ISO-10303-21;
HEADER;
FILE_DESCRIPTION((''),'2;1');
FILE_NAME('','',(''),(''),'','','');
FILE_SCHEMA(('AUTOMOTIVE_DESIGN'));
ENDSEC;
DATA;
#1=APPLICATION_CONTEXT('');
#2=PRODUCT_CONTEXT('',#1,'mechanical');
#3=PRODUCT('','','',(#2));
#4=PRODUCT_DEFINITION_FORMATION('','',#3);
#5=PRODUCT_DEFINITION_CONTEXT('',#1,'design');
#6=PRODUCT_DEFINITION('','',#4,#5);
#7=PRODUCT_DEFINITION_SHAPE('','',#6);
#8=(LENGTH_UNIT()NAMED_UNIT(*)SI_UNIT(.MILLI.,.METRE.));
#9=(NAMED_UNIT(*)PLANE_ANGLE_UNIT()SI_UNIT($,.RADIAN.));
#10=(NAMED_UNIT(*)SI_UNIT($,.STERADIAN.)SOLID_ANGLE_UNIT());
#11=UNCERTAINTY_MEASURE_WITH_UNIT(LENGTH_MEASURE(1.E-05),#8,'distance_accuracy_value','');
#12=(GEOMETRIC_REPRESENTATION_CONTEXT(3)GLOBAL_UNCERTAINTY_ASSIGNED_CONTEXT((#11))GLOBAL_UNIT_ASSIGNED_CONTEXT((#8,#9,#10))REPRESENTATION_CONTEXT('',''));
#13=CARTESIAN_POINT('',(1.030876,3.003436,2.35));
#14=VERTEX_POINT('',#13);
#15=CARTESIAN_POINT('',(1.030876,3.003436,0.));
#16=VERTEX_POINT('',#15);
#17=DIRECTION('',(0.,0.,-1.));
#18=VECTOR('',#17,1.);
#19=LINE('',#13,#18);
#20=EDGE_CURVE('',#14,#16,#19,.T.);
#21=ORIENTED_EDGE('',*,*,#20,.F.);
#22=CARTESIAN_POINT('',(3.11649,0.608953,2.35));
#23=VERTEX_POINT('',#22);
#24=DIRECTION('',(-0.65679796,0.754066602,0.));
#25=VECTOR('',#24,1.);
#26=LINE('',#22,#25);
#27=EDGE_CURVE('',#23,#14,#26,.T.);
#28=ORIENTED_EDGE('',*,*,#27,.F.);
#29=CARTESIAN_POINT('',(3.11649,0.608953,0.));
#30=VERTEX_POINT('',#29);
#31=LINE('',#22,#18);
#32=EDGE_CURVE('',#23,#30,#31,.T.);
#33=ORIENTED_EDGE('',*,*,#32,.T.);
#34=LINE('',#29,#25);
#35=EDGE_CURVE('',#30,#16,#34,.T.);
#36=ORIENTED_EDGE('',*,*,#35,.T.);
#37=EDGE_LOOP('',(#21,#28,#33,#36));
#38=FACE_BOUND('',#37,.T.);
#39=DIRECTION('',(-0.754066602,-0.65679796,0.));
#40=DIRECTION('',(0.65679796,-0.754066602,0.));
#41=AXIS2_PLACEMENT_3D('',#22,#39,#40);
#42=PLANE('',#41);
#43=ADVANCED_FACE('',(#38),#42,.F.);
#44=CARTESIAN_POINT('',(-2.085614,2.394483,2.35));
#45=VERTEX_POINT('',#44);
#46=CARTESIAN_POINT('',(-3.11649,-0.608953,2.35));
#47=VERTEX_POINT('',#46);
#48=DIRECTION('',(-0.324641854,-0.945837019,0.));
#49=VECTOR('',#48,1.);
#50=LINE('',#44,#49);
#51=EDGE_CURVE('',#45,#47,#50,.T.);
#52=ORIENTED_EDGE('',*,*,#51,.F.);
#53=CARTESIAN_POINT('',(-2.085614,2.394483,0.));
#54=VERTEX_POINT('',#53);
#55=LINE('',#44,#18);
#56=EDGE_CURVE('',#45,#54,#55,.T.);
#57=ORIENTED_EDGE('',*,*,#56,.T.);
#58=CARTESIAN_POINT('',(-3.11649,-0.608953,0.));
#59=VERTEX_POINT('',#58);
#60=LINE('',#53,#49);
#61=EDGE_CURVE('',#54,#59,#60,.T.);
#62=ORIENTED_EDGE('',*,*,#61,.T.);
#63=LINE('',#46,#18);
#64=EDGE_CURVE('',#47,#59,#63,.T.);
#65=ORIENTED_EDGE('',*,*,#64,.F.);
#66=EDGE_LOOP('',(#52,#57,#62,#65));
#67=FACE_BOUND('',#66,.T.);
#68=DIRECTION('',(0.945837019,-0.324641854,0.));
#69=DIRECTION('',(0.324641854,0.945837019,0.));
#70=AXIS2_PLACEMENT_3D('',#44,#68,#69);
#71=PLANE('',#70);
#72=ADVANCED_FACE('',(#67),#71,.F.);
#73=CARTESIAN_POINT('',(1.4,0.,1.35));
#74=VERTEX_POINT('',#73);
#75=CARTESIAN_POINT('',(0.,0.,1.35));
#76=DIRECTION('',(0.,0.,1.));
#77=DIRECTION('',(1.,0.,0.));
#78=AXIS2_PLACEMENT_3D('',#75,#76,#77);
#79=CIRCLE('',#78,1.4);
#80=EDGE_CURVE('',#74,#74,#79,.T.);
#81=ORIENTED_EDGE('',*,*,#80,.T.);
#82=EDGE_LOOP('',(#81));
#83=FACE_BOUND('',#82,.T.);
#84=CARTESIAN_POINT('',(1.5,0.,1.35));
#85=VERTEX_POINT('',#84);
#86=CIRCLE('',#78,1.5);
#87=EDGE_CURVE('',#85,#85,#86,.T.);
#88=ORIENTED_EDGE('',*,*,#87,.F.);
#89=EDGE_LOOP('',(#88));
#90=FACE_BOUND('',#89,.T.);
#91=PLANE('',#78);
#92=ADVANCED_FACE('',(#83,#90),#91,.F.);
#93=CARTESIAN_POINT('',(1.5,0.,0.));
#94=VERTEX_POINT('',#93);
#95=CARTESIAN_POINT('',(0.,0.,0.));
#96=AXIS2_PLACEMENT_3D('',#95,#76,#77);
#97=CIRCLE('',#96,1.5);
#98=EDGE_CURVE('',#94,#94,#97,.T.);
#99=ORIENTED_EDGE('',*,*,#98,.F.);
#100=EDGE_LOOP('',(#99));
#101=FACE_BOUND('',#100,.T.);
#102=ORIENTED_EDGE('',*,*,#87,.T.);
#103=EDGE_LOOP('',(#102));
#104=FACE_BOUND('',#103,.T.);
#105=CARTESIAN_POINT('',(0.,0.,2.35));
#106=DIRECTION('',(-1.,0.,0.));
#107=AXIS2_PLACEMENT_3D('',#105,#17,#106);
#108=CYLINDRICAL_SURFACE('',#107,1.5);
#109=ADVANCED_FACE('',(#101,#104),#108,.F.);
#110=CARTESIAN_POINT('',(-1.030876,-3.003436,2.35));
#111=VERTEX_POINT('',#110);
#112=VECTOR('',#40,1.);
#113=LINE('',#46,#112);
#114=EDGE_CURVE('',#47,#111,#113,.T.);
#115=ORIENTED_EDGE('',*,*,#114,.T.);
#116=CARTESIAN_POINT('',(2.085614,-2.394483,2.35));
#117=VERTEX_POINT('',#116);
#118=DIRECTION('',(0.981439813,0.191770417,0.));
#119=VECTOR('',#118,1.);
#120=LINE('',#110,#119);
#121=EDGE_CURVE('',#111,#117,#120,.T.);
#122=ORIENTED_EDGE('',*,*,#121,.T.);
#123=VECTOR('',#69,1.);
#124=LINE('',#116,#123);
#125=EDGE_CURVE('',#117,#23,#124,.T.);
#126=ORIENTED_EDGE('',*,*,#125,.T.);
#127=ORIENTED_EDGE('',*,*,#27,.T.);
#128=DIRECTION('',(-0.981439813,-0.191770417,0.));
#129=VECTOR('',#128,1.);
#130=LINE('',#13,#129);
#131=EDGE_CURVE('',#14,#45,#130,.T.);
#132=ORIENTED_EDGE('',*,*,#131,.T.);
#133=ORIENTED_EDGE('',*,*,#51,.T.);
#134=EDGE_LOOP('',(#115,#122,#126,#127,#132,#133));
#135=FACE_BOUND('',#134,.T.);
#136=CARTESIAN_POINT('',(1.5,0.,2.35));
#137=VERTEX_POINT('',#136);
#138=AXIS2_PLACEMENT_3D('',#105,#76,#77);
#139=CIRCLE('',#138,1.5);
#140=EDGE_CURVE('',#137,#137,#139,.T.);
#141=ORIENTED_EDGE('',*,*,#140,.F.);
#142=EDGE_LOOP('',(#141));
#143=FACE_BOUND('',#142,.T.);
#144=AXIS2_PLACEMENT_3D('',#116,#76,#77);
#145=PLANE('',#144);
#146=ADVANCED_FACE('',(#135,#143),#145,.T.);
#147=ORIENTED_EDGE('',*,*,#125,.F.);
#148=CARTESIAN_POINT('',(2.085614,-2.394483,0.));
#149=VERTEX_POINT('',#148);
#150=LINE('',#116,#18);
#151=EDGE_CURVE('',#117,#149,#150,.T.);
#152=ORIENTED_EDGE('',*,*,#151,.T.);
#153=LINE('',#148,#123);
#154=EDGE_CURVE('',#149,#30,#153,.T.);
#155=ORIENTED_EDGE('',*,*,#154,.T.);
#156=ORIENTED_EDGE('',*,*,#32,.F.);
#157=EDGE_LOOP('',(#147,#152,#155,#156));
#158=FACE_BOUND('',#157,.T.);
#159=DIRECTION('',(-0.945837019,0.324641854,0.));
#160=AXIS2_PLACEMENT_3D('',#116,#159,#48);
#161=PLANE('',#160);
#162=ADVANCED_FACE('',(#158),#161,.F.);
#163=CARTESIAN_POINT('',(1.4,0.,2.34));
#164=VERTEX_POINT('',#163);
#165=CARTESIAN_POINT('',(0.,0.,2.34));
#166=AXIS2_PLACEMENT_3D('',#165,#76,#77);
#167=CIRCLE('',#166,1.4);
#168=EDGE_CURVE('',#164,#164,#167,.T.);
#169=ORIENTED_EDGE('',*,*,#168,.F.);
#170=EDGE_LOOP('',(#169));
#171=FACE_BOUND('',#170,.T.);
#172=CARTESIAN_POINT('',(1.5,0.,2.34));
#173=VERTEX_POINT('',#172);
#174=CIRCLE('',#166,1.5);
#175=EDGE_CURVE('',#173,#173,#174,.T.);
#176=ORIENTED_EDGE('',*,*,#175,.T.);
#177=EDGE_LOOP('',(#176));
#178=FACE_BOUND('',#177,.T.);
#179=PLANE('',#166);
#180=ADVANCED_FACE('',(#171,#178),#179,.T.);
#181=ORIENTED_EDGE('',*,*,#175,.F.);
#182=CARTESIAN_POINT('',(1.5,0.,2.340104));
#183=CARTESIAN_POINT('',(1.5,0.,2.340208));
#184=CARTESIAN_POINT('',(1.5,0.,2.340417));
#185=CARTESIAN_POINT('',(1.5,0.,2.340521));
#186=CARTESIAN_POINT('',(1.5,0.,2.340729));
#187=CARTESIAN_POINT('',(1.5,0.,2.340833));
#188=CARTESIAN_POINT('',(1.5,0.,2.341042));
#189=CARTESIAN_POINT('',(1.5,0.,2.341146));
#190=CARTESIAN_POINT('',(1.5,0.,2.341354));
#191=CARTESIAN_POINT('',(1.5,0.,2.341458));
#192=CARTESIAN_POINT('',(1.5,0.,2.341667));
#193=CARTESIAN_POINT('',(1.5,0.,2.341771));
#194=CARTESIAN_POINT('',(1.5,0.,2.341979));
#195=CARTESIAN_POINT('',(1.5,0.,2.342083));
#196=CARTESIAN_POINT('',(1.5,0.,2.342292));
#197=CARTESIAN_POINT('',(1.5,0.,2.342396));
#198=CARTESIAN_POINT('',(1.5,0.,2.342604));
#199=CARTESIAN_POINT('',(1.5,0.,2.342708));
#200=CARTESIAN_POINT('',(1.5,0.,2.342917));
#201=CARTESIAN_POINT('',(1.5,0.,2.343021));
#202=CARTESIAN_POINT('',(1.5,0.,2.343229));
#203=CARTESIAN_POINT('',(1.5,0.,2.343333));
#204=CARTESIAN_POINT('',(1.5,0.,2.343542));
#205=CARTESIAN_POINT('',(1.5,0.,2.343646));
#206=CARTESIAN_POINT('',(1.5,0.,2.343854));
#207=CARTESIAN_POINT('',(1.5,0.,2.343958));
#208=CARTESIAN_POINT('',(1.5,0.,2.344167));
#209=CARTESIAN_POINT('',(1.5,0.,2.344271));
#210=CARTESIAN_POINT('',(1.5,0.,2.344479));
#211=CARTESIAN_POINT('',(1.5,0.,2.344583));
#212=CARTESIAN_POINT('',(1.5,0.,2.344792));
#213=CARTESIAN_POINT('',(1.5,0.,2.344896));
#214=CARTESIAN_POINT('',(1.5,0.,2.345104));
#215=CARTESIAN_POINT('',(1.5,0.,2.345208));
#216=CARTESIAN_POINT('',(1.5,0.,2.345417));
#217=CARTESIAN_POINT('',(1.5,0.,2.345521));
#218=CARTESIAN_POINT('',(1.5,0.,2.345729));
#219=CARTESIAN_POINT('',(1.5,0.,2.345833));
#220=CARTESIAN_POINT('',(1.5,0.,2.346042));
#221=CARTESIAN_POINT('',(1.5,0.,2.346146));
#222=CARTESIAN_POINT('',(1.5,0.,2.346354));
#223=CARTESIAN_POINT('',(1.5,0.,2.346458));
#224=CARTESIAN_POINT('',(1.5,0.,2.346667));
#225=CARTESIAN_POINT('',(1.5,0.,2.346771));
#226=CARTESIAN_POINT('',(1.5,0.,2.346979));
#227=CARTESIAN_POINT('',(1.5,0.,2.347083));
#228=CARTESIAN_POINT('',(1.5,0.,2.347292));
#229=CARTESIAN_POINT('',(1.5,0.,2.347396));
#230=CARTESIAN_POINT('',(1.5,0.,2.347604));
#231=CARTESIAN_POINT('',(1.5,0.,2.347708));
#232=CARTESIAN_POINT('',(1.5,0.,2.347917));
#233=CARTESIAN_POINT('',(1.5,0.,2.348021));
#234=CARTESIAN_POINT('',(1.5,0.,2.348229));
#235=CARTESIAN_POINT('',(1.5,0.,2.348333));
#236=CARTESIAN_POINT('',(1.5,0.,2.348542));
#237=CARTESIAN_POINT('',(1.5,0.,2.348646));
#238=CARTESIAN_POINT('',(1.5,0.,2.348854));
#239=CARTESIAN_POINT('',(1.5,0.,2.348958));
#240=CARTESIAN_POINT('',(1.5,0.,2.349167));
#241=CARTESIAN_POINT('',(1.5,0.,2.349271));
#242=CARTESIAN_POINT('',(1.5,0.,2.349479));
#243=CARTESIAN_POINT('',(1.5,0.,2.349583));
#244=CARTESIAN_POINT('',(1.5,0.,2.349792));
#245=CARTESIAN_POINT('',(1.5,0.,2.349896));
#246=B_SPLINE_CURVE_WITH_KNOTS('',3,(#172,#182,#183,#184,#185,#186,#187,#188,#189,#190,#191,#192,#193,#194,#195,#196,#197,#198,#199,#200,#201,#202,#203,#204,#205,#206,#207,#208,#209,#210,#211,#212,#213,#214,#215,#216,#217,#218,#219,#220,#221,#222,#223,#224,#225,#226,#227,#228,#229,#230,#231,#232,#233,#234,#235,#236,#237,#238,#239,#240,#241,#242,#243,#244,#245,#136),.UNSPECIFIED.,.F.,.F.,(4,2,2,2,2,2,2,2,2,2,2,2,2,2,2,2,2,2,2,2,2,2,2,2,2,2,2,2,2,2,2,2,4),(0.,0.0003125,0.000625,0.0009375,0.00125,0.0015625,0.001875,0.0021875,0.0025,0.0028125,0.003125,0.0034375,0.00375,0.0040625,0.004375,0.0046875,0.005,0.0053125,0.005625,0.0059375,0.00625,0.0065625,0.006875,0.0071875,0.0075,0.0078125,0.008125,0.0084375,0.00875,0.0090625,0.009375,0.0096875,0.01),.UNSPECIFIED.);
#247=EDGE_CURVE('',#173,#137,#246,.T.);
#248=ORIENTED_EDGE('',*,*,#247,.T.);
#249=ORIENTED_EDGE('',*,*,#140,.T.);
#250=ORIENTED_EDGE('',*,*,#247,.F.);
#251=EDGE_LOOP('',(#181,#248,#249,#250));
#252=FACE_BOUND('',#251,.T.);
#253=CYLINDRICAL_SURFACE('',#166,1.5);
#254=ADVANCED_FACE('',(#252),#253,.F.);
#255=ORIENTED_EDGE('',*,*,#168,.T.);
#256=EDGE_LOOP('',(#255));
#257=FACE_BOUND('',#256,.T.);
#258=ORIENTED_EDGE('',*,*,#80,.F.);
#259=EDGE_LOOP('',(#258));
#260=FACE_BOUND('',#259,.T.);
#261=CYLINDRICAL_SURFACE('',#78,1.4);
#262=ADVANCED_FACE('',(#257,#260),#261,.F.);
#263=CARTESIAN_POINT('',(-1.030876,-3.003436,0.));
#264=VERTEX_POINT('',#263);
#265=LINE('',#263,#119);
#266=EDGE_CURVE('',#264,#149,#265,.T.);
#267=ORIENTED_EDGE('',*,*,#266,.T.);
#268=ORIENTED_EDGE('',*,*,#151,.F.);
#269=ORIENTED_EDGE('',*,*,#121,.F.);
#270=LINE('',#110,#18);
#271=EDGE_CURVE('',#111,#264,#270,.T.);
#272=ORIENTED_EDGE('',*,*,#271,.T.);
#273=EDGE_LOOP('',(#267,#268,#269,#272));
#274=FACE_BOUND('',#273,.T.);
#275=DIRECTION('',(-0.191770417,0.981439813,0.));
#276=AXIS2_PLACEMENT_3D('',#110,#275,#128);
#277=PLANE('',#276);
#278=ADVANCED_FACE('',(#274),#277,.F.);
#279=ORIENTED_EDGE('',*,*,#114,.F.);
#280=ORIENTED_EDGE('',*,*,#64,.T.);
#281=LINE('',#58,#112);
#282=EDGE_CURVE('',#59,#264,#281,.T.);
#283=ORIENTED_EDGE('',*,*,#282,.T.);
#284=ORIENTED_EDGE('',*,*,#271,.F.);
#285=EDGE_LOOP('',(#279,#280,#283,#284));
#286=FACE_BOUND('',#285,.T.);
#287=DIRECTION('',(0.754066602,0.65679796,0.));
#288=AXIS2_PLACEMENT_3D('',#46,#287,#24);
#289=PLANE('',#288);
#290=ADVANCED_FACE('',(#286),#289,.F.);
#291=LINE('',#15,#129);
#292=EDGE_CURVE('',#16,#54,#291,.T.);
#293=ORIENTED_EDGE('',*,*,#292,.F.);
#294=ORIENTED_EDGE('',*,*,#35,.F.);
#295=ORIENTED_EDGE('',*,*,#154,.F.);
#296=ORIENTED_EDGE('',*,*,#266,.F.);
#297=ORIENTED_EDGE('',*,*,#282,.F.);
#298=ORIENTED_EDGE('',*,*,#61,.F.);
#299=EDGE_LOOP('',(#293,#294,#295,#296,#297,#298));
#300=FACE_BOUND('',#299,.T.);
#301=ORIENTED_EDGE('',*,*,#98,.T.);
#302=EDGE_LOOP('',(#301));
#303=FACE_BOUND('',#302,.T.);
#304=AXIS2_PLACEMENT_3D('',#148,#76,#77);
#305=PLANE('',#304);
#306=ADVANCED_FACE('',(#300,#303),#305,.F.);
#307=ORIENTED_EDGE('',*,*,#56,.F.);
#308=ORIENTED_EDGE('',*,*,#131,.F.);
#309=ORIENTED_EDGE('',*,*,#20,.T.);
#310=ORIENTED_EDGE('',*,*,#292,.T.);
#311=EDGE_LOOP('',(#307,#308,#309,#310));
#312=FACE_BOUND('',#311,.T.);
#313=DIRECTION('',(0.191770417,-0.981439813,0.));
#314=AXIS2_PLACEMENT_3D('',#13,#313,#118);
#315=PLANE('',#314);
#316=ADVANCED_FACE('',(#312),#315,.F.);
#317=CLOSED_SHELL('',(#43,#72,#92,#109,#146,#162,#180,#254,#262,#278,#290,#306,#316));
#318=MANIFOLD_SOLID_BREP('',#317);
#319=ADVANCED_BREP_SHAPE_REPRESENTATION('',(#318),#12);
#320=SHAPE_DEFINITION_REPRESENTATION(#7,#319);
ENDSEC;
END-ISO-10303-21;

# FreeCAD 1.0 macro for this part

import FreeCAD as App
import Part
import Sketcher
Q = App.Units.Quantity


def add_polygon(sketch, points):
    """Adds a closed chain of lines whose ends are joined by coincident constraints."""
    first, n = sketch.GeometryCount, len(points)
    for a, b in zip(points, points[1:] + points[:1]):
        sketch.addGeometry(Part.LineSegment(App.Vector(*a, 0), App.Vector(*b, 0)), False)
    for i in range(n):
        sketch.addConstraint(Sketcher.Constraint("Coincident", first + i, 2, first + (i + 1) % n, 1))

doc = App.newDocument("Part")
body = doc.addObject("PartDesign::Body", "Body")

# Sketch on XY plane
sketch1 = body.newObject("Sketcher::SketchObject", "Sketch")
sketch1.AttachmentSupport = (doc.getObject("XY_Plane"), [""])
sketch1.MapMode = "FlatFace"
add_polygon(sketch1, [(2.085614, -2.394483), (3.11649, 0.608953), (1.030876, 3.003436), (-2.085614, 2.394483), (-3.11649, -0.608953), (-1.030876, -3.003436)])  # lines 0-5
sketch1.addGeometry(Part.Circle(App.Vector(0, 0, 0), App.Vector(0, 0, 1), 1.5), False)  # 6
sketch1.addConstraint(Sketcher.Constraint("Coincident", 6, 3, -1, 1))
sketch1.addConstraint(Sketcher.Constraint("Symmetric", 0, 2, 3, 2, -1, 1))
sketch1.addConstraint(Sketcher.Constraint("Symmetric", 1, 2, 4, 2, -1, 1))
sketch1.addConstraint(Sketcher.Constraint("Symmetric", 2, 2, 5, 2, -1, 1))
sketch1.addConstraint(Sketcher.Constraint("Equal", 0, 1))
sketch1.addConstraint(Sketcher.Constraint("Equal", 1, 2))
sketch1.addConstraint(Sketcher.Constraint("Diameter", 6, Q("3 mm")))
sketch1.addConstraint(Sketcher.Constraint("DistanceX", -1, 1, 0, 2, Q("3.11649 mm")))
sketch1.addConstraint(Sketcher.Constraint("DistanceX", 2, 2, 1, 2, Q("3.11649 mm")))
sketch1.addConstraint(Sketcher.Constraint("DistanceY", 0, 2, 2, 2, Q("1.78553 mm")))
sketch1.addConstraint(Sketcher.Constraint("DistanceY", 3, 2, 1, 2, Q("3.612389 mm")))
pad1 = body.newObject("PartDesign::Pad", "Pad")
pad1.Profile = sketch1
pad1.Length = 2.35

# Sketch on XY plane
sketch2 = body.newObject("Sketcher::SketchObject", "Sketch001")
sketch2.AttachmentSupport = (doc.getObject("XY_Plane"), [""])
sketch2.MapMode = "FlatFace"
sketch2.AttachmentOffset = App.Placement(App.Vector(0, 0, 1.35), App.Rotation())
sketch2.addGeometry(Part.Circle(App.Vector(0, 0, 0), App.Vector(0, 0, 1), 1.5), False)
sketch2.addGeometry(Part.Circle(App.Vector(0, 0, 0), App.Vector(0, 0, 1), 1.4), False)
sketch2.addConstraint(Sketcher.Constraint("Coincident", 0, 3, -1, 1))
sketch2.addConstraint(Sketcher.Constraint("Coincident", 1, 3, -1, 1))
sketch2.addConstraint(Sketcher.Constraint("Diameter", 0, Q("3 mm")))
sketch2.addConstraint(Sketcher.Constraint("Diameter", 1, Q("2.8 mm")))
pad2 = body.newObject("PartDesign::Pad", "Pad001")
pad2.Profile = sketch2
pad2.Length = 1

# Sketch on XY plane
sketch3 = body.newObject("Sketcher::SketchObject", "Sketch002")
sketch3.AttachmentSupport = (doc.getObject("XY_Plane"), [""])
sketch3.MapMode = "FlatFace"
sketch3.AttachmentOffset = App.Placement(App.Vector(0, 0, 2.34), App.Rotation())
sketch3.addGeometry(Part.Circle(App.Vector(0, 0, 0), App.Vector(0, 0, 1), 1.5), False)
sketch3.addGeometry(Part.Circle(App.Vector(0, 0, 0), App.Vector(0, 0, 1), 1.4), False)
sketch3.addConstraint(Sketcher.Constraint("Coincident", 0, 3, -1, 1))
sketch3.addConstraint(Sketcher.Constraint("Coincident", 1, 3, -1, 1))
sketch3.addConstraint(Sketcher.Constraint("Diameter", 0, Q("3 mm")))
sketch3.addConstraint(Sketcher.Constraint("Diameter", 1, Q("2.8 mm")))
pocket1 = body.newObject("PartDesign::Pocket", "Pocket")
pocket1.Profile = sketch3
pocket1.Length = 0.01
pocket1.Reversed = True

doc.recompute()
